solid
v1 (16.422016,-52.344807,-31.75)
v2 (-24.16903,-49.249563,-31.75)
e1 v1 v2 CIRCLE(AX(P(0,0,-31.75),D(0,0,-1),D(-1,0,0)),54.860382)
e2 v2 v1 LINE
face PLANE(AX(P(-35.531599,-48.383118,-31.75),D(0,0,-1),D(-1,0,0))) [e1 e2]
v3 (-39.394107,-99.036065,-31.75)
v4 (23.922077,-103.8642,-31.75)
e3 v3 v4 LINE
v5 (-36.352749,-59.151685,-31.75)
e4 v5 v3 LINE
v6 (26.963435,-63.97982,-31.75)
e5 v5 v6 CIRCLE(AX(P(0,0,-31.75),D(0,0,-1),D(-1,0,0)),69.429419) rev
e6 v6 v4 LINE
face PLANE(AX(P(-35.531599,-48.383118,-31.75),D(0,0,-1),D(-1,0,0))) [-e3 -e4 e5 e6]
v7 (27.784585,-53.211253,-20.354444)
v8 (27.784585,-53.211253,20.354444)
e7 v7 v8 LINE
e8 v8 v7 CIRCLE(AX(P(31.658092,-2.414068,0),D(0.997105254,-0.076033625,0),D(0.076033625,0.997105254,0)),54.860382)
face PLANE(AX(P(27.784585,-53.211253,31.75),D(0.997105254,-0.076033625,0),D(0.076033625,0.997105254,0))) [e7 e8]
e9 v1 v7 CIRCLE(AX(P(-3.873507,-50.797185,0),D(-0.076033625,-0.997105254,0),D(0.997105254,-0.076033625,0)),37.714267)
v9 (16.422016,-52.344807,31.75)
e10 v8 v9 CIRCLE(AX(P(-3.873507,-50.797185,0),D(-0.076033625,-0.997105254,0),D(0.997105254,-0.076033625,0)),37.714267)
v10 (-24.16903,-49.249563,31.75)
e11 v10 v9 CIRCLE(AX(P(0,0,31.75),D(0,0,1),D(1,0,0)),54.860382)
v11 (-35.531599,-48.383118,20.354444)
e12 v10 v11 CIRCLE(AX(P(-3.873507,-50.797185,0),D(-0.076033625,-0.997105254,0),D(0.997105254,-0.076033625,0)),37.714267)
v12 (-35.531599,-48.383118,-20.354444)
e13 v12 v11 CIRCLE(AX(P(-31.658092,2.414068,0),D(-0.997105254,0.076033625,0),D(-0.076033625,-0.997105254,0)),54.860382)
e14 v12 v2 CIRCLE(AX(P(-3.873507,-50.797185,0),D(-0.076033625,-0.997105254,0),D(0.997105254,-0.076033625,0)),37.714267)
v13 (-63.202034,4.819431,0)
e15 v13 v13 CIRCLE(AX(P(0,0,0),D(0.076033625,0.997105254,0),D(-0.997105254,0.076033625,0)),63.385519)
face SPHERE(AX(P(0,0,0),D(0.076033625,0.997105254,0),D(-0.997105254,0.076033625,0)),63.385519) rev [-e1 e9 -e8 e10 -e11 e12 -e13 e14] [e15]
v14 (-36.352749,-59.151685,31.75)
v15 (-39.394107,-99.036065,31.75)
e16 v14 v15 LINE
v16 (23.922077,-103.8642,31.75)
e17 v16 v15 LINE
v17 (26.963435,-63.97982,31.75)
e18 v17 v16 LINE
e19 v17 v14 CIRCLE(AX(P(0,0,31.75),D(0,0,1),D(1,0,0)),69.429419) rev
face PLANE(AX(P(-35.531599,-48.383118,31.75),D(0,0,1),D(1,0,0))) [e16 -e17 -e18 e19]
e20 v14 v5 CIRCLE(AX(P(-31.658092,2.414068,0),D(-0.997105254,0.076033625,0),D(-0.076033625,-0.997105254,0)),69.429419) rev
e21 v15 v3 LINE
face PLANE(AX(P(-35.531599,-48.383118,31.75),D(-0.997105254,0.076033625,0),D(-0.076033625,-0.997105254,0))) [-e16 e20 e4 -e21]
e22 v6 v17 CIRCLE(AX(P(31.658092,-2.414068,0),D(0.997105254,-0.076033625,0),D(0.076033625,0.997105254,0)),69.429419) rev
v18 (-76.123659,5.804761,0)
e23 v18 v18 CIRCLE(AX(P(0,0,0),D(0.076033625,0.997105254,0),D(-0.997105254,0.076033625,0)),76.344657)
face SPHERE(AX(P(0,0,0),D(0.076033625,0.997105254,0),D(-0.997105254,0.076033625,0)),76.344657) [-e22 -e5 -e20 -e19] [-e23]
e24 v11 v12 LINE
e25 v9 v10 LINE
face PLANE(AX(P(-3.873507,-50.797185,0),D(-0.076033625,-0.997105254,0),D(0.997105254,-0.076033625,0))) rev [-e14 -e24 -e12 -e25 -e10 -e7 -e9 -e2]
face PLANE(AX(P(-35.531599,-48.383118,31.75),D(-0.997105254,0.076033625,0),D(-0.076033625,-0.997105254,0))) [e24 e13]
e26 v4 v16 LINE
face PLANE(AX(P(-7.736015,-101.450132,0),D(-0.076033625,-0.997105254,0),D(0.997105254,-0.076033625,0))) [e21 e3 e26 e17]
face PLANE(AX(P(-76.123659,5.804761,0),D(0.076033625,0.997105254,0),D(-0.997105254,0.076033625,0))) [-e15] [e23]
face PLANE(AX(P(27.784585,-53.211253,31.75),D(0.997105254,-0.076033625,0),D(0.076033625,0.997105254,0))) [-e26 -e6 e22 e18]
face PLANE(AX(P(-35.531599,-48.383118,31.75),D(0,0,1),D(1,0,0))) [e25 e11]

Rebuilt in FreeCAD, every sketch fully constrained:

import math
import FreeCAD as App
import Part
import Sketcher

V = App.Vector
Q = App.Units.Quantity

doc = App.newDocument("Part")
body = doc.addObject("PartDesign::Body", "Body")

sketch1 = body.newObject("Sketcher::SketchObject", "Sketch")
sketch1.AttachmentSupport = (doc.getObject("XY_Plane"), [""])
sketch1.MapMode = "FlatFace"
sketch1.addGeometry(Part.LineSegment(V(-63, 5, 0), V(-76, 6, 0)), False)
sketch1.addGeometry(Part.ArcOfCircle(Part.Circle(V(0, 0, 0), V(0, 0, 1), 76), math.radians(176), math.radians(266)), False)
sketch1.addGeometry(Part.LineSegment(V(-6, -76, 0), V(-5, -63, 0)), False)
sketch1.addGeometry(Part.ArcOfCircle(Part.Circle(V(0, 0, 0), V(0, 0, 1), 63), math.radians(176), math.radians(266)), False)
sketch1.addGeometry(Part.LineSegment(V(0, 0, 0), V(-6, -76, 0)), True)
sketch1.addConstraint(Sketcher.Constraint("Coincident", 0, 2, 1, 1))
sketch1.addConstraint(Sketcher.Constraint("Coincident", 1, 2, 2, 1))
sketch1.addConstraint(Sketcher.Constraint("Coincident", 2, 2, 3, 2))
sketch1.addConstraint(Sketcher.Constraint("Coincident", 3, 1, 0, 1))
sketch1.addConstraint(Sketcher.Constraint("Coincident", 1, 3, -1, 1))
sketch1.addConstraint(Sketcher.Constraint("Coincident", 3, 3, -1, 1))
sketch1.addConstraint(Sketcher.Constraint("Coincident", 4, 1, -1, 1))
sketch1.addConstraint(Sketcher.Constraint("Coincident", 4, 2, 1, 2))
sketch1.addConstraint(Sketcher.Constraint("Perpendicular", 0, 2))
sketch1.addConstraint(Sketcher.Constraint("Parallel", 2, 4))
sketch1.addConstraint(Sketcher.Constraint("Radius", 3, Q("63.385519 mm")))
sketch1.addConstraint(Sketcher.Constraint("Radius", 1, Q("76.344657 mm")))
sketch1.addConstraint(Sketcher.Constraint("DistanceX", 0, 2, -1, 1, Q("76.123659 mm")))
sketch1.addConstraint(Sketcher.Constraint("DistanceX", 1, 2, -1, 1, Q("5.804761 mm")))
revolution = body.newObject("PartDesign::Revolution", "Revolution")
revolution.Profile = sketch1
revolution.ReferenceAxis = (sketch1, ["Axis0"])
revolution.Angle = 360

sketch2 = body.newObject("Sketcher::SketchObject", "Sketch001")
sketch2.Placement = App.Placement(V(-5.804761, -76.123659, 0), App.Rotation(V(-0.997105254, 0.076033625, 0), V(0, 0, -1), V(-0.076033625, -0.997105254, 0), "ZXY"))
sketch2.addGeometry(Part.LineSegment(V(-32, 32, 0), V(-32, -32, 0)), False)
sketch2.addGeometry(Part.LineSegment(V(-32, -32, 0), V(32, -32, 0)), False)
sketch2.addGeometry(Part.LineSegment(V(32, -32, 0), V(32, 32, 0)), False)
sketch2.addGeometry(Part.LineSegment(V(32, 32, 0), V(-32, 32, 0)), False)
sketch2.addConstraint(Sketcher.Constraint("Coincident", 0, 2, 1, 1))
sketch2.addConstraint(Sketcher.Constraint("Coincident", 1, 2, 2, 1))
sketch2.addConstraint(Sketcher.Constraint("Coincident", 2, 2, 3, 1))
sketch2.addConstraint(Sketcher.Constraint("Coincident", 3, 2, 0, 1))
sketch2.addConstraint(Sketcher.Constraint("Vertical", 0))
sketch2.addConstraint(Sketcher.Constraint("Horizontal", 1))
sketch2.addConstraint(Sketcher.Constraint("Vertical", 2))
sketch2.addConstraint(Sketcher.Constraint("Horizontal", 3))
sketch2.addConstraint(Sketcher.Constraint("Symmetric", 0, 2, 2, 2, -1, 1))
sketch2.addConstraint(Sketcher.Constraint("Equal", 3, 0))
sketch2.addConstraint(Sketcher.Constraint("DistanceX", 1, 1, 1, 2, Q("2.5 in")))
pad1 = body.newObject("PartDesign::Pad", "Pad")
pad1.Profile = sketch2
pad1.Type = "TwoLengths"
pad1.Length = Q("1 in")
pad1.Length2 = Q("1 in")

doc.recompute()
